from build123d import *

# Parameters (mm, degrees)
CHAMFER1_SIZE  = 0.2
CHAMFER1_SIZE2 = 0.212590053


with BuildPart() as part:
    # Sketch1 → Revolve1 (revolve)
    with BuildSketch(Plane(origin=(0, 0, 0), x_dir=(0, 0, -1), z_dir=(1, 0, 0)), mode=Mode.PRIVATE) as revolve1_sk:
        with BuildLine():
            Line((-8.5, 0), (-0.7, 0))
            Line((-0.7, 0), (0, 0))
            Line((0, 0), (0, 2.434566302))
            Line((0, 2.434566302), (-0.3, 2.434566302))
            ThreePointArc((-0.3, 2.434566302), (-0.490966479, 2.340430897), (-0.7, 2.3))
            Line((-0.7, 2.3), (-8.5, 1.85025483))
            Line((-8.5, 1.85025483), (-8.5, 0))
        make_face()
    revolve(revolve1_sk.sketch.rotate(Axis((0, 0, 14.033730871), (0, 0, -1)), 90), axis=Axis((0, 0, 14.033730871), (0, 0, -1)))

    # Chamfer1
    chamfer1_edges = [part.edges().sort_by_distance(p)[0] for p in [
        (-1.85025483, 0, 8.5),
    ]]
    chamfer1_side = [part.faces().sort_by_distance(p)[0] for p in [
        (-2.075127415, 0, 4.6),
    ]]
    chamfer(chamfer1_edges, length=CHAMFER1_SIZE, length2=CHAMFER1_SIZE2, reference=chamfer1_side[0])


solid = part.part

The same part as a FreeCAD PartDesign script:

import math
import FreeCAD as App
import Part
import Sketcher

V = App.Vector
Q = App.Units.Quantity


def edges_at(feature, points):
    """Names of the edges that pass closest to the given points."""
    edges = feature.Shape.Edges
    near = lambda p: min(range(len(edges)), key=lambda i: edges[i].distToShape(Part.Vertex(*p))[0])
    return sorted({f"Edge{near(p) + 1}" for p in points})

doc = App.newDocument("Part")
body = doc.addObject("PartDesign::Body", "Body")

sketch1 = body.newObject("Sketcher::SketchObject", "Sketch")
sketch1.AttachmentSupport = (doc.getObject("YZ_Plane"), [""])
sketch1.MapMode = "FlatFace"
sketch1.addGeometry(Part.LineSegment(V(0, 8.5, 0), V(0, 0, 0)), False)
sketch1.addGeometry(Part.LineSegment(V(0, 0, 0), V(2.434566, 0, 0)), False)
sketch1.addGeometry(Part.LineSegment(V(2.434566, 0, 0), V(2.434566, 0.3, 0)), False)
sketch1.addGeometry(Part.ArcOfCircle(Part.Circle(V(3.098673, 0.746051, 0), V(0, 0, 1), 0.8), math.radians(-176.7), math.radians(-146.112499)), False)
sketch1.addGeometry(Part.LineSegment(V(2.3, 0.7, 0), V(1.850255, 8.5, 0)), False)
sketch1.addGeometry(Part.LineSegment(V(1.850255, 8.5, 0), V(0, 8.5, 0)), False)
sketch1.addConstraint(Sketcher.Constraint("Coincident", 0, 2, 1, 1))
sketch1.addConstraint(Sketcher.Constraint("Coincident", 1, 2, 2, 1))
sketch1.addConstraint(Sketcher.Constraint("Coincident", 2, 2, 3, 2))
sketch1.addConstraint(Sketcher.Constraint("Tangent", 3, 1, 4, 1))
sketch1.addConstraint(Sketcher.Constraint("Coincident", 4, 2, 5, 1))
sketch1.addConstraint(Sketcher.Constraint("Coincident", 5, 2, 0, 1))
sketch1.addConstraint(Sketcher.Constraint("Vertical", 0))
sketch1.addConstraint(Sketcher.Constraint("Horizontal", 1))
sketch1.addConstraint(Sketcher.Constraint("Vertical", 2))
sketch1.addConstraint(Sketcher.Constraint("Horizontal", 5))
sketch1.addConstraint(Sketcher.Constraint("Coincident", 0, 2, -1, 1))
sketch1.addConstraint(Sketcher.Constraint("Radius", 3, 0.8))
sketch1.addConstraint(Sketcher.Constraint("DistanceY", 0, 2, 0, 1, 8.5))
sketch1.addConstraint(Sketcher.Constraint("DistanceY", 2, 1, 2, 2, 0.3))
sketch1.addConstraint(Sketcher.Constraint("Angle", 4, Q("93.3 deg")))
sketch1.addConstraint(Sketcher.Constraint("DistanceX", -1, 1, 3, 1, 2.3))
sketch1.addConstraint(Sketcher.Constraint("DistanceY", -1, 1, 3, 1, 0.7))
revolution = body.newObject("PartDesign::Revolution", "Revolution")
revolution.Profile = sketch1
revolution.ReferenceAxis = (sketch1, ["V_Axis"])
revolution.Angle = 360
doc.recompute()

chamfer = body.newObject("PartDesign::Chamfer", "Chamfer")
chamfer.Base = (revolution, edges_at(revolution, [(-1.85, 0, 8.5)]))
chamfer.ChamferType = "Two distances"
chamfer.Size = 0.2
chamfer.Size2 = 0.21259

doc.recompute()
